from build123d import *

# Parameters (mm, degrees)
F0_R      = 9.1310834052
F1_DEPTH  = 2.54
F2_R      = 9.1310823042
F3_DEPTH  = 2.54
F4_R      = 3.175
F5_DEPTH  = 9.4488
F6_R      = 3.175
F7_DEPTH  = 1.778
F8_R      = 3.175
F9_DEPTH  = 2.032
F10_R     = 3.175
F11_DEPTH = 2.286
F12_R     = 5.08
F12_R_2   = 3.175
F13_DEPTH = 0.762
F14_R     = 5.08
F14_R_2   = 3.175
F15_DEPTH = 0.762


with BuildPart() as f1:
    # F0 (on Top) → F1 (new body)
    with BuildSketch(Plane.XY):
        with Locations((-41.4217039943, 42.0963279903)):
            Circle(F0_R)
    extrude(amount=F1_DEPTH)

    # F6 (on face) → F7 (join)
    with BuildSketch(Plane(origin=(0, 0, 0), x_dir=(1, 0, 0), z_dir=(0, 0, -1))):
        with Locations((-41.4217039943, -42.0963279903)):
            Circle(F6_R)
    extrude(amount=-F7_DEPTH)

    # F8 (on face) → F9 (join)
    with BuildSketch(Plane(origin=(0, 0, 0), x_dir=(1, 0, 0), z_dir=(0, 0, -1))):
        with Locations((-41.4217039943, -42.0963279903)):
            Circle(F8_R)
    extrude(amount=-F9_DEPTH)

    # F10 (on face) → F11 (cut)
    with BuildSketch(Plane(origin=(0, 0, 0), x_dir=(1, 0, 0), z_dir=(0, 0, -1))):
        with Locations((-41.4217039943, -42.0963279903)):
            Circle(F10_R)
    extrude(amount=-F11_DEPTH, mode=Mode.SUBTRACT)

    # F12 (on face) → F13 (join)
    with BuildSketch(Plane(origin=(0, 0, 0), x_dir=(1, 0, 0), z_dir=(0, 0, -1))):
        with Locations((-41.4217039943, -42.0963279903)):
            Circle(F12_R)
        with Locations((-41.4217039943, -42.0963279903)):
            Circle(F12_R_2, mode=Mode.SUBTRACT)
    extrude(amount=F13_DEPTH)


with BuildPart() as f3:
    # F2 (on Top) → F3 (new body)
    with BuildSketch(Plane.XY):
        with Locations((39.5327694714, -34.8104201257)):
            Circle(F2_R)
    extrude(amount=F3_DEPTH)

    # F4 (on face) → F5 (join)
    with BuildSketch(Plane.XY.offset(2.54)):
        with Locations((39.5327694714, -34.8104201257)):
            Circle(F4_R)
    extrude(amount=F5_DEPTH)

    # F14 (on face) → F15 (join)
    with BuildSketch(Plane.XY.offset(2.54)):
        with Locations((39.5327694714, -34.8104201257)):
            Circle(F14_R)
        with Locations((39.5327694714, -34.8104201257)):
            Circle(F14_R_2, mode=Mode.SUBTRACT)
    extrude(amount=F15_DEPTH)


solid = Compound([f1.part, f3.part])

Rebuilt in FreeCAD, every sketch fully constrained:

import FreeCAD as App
import Part
import Sketcher
from FreeCAD import Vector
Q = App.Units.Quantity

doc = App.newDocument("Part")
body = doc.addObject("PartDesign::Body", "Body")

# Sketch on XY plane
sketch1 = doc.addObject("Sketcher::SketchObject", "Sketch")
body.addObject(sketch1)
sketch1.AttachmentSupport = (doc.XY_Plane, [""])
sketch1.MapMode = "FlatFace"
sketch1.addGeometry(Part.Circle(Vector(-41, 42, 0), Vector(0, 0, 1), 9), False)
sketch1.addConstraint([
    Sketcher.Constraint("Diameter", 0, Q("18.262167 mm")),
    Sketcher.Constraint("DistanceX", 0, 3, -1, 1, Q("41.421704 mm")),
    Sketcher.Constraint("DistanceY", -1, 1, 0, 3, Q("42.096328 mm")),
])
pad1 = doc.addObject("PartDesign::Pad", "Pad")
body.addObject(pad1)
pad1.Profile = sketch1
pad1.Length = Q("0.1 in")

# Sketch on XY plane
sketch2 = doc.addObject("Sketcher::SketchObject", "Sketch001")
body.addObject(sketch2)
sketch2.AttachmentSupport = (doc.XY_Plane, [""])
sketch2.MapMode = "FlatFace"
sketch2.addGeometry(Part.Circle(Vector(-41.4, 42.1, 0), Vector(0, 0, 1), 3.2), False)
sketch2.addConstraint([
    Sketcher.Constraint("Diameter", 0, Q("0.25 in")),
    Sketcher.Constraint("DistanceX", 0, 3, -1, 1, Q("41.421704 mm")),
    Sketcher.Constraint("DistanceY", -1, 1, 0, 3, Q("42.096328 mm")),
])
pad2 = doc.addObject("PartDesign::Pad", "Pad001")
body.addObject(pad2)
pad2.Profile = sketch2
pad2.Length = Q("0.07 in")

# Sketch on XY plane
sketch3 = doc.addObject("Sketcher::SketchObject", "Sketch002")
body.addObject(sketch3)
sketch3.AttachmentSupport = (doc.XY_Plane, [""])
sketch3.MapMode = "FlatFace"
sketch3.addGeometry(Part.Circle(Vector(-41.4, 42.1, 0), Vector(0, 0, 1), 3.2), False)
sketch3.addConstraint([
    Sketcher.Constraint("Diameter", 0, Q("0.25 in")),
    Sketcher.Constraint("DistanceX", 0, 3, -1, 1, Q("41.421704 mm")),
    Sketcher.Constraint("DistanceY", -1, 1, 0, 3, Q("42.096328 mm")),
])
pad3 = doc.addObject("PartDesign::Pad", "Pad002")
body.addObject(pad3)
pad3.Profile = sketch3
pad3.Length = Q("0.08 in")

# Sketch on XY plane
sketch4 = doc.addObject("Sketcher::SketchObject", "Sketch003")
body.addObject(sketch4)
sketch4.AttachmentSupport = (doc.XY_Plane, [""])
sketch4.MapMode = "FlatFace"
sketch4.addGeometry(Part.Circle(Vector(-41.4, 42.1, 0), Vector(0, 0, 1), 3.2), False)
sketch4.addConstraint([
    Sketcher.Constraint("Diameter", 0, Q("0.25 in")),
    Sketcher.Constraint("DistanceX", 0, 3, -1, 1, Q("41.421704 mm")),
    Sketcher.Constraint("DistanceY", -1, 1, 0, 3, Q("42.096328 mm")),
])
pocket1 = doc.addObject("PartDesign::Pocket", "Pocket")
body.addObject(pocket1)
pocket1.Profile = sketch4
pocket1.Length = Q("0.09 in")
pocket1.Reversed = True

# Sketch on XY plane
sketch5 = doc.addObject("Sketcher::SketchObject", "Sketch004")
body.addObject(sketch5)
sketch5.AttachmentSupport = (doc.XY_Plane, [""])
sketch5.MapMode = "FlatFace"
sketch5.addGeometry([
    Part.Circle(Vector(-41.4, 42.1, 0), Vector(0, 0, 1), 5.1),
    Part.Circle(Vector(-41.4, 42.1, 0), Vector(0, 0, 1), 3.2),
], False)
sketch5.addConstraint([
    Sketcher.Constraint("Coincident", 1, 3, 0, 3),
    Sketcher.Constraint("Diameter", 0, Q("0.4 in")),
    Sketcher.Constraint("Diameter", 1, Q("0.25 in")),
    Sketcher.Constraint("DistanceX", 0, 3, -1, 1, Q("41.421704 mm")),
    Sketcher.Constraint("DistanceY", -1, 1, 0, 3, Q("42.096328 mm")),
])
pad4 = doc.addObject("PartDesign::Pad", "Pad003")
body.addObject(pad4)
pad4.Profile = sketch5
pad4.Length = Q("0.03 in")
pad4.Reversed = True
body2 = doc.addObject("PartDesign::Body", "Body001")

# Sketch on XY plane
sketch6 = doc.addObject("Sketcher::SketchObject", "Sketch005")
body2.addObject(sketch6)
sketch6.AttachmentSupport = (doc.getObject("XY_Plane001"), [""])
sketch6.MapMode = "FlatFace"
sketch6.addGeometry(Part.Circle(Vector(40, -35, 0), Vector(0, 0, 1), 9), False)
sketch6.addConstraint([
    Sketcher.Constraint("Diameter", 0, Q("18.262165 mm")),
    Sketcher.Constraint("DistanceX", -1, 1, 0, 3, Q("39.532769 mm")),
    Sketcher.Constraint("DistanceY", 0, 3, -1, 1, Q("34.81042 mm")),
])
pad5 = doc.addObject("PartDesign::Pad", "Pad004")
body2.addObject(pad5)
pad5.Profile = sketch6
pad5.Length = Q("0.1 in")

# Sketch on XY plane
sketch7 = doc.addObject("Sketcher::SketchObject", "Sketch006")
body2.addObject(sketch7)
sketch7.AttachmentSupport = (doc.getObject("XY_Plane001"), [""])
sketch7.MapMode = "FlatFace"
sketch7.AttachmentOffset = App.Placement(Vector(0, 0, 0.1 * 25.4), App.Rotation())
sketch7.addGeometry(Part.Circle(Vector(39.5, -34.8, 0), Vector(0, 0, 1), 3.2), False)
sketch7.addConstraint([
    Sketcher.Constraint("Diameter", 0, Q("0.25 in")),
    Sketcher.Constraint("DistanceX", -1, 1, 0, 3, Q("39.532769 mm")),
    Sketcher.Constraint("DistanceY", 0, 3, -1, 1, Q("34.81042 mm")),
])
pad6 = doc.addObject("PartDesign::Pad", "Pad005")
body2.addObject(pad6)
pad6.Profile = sketch7
pad6.Length = Q("0.372 in")

# Sketch on XY plane
sketch8 = doc.addObject("Sketcher::SketchObject", "Sketch007")
body2.addObject(sketch8)
sketch8.AttachmentSupport = (doc.getObject("XY_Plane001"), [""])
sketch8.MapMode = "FlatFace"
sketch8.AttachmentOffset = App.Placement(Vector(0, 0, 0.1 * 25.4), App.Rotation())
sketch8.addGeometry([
    Part.Circle(Vector(39.5, -34.8, 0), Vector(0, 0, 1), 5.1),
    Part.Circle(Vector(39.5, -34.8, 0), Vector(0, 0, 1), 3.2),
], False)
sketch8.addConstraint([
    Sketcher.Constraint("Coincident", 1, 3, 0, 3),
    Sketcher.Constraint("Diameter", 0, Q("0.4 in")),
    Sketcher.Constraint("Diameter", 1, Q("0.25 in")),
    Sketcher.Constraint("DistanceX", -1, 1, 0, 3, Q("39.532769 mm")),
    Sketcher.Constraint("DistanceY", 0, 3, -1, 1, Q("34.81042 mm")),
])
pad7 = doc.addObject("PartDesign::Pad", "Pad006")
body2.addObject(pad7)
pad7.Profile = sketch8
pad7.Length = Q("0.03 in")

doc.recompute()
